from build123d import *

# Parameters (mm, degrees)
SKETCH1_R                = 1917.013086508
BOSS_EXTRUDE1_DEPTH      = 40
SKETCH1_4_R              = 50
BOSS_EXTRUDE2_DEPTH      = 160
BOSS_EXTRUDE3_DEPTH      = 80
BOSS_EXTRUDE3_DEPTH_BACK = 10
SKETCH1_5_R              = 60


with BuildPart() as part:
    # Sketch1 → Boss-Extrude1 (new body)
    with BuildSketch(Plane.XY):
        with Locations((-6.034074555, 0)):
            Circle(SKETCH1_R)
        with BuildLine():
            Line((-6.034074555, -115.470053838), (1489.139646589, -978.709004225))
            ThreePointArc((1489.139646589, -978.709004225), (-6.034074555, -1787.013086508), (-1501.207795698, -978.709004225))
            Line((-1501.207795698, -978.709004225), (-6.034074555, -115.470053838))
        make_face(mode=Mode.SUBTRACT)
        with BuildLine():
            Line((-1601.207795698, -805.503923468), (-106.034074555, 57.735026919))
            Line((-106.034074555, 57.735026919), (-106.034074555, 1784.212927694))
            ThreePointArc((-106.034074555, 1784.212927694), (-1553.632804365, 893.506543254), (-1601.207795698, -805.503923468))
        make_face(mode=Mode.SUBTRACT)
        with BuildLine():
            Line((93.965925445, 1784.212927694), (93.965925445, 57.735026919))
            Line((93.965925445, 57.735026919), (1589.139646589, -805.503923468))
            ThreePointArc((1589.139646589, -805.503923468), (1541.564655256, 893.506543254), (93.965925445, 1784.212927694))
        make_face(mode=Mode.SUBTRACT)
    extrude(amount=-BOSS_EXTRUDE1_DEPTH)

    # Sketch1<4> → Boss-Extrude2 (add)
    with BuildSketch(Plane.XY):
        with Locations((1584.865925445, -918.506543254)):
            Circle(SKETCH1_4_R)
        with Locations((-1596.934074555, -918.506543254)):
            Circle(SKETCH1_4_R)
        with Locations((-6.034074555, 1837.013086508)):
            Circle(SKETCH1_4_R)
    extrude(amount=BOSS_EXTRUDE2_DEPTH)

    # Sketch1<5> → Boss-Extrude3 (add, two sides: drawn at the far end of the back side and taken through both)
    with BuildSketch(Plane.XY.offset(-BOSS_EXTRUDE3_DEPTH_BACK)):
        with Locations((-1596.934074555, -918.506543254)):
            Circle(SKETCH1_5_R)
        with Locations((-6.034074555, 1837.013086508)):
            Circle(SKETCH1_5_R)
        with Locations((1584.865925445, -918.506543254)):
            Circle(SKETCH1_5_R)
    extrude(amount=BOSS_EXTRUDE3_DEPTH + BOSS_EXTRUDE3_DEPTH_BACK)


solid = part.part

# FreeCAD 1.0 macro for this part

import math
import FreeCAD as App
import Part
import Sketcher
from FreeCAD import Vector
Q = App.Units.Quantity

doc = App.newDocument("Part")
body = doc.addObject("PartDesign::Body", "Body")

sketch1 = body.newObject("Sketcher::SketchObject", "Sketch")
sketch1.AttachmentSupport = (doc.getObject("XY_Plane"), [""])
sketch1.MapMode = "FlatFace"
sketch1.addGeometry([
    Part.Circle(Vector(-6.034075, 0, 0), Vector(0, 0, 1), 1917.013087),
    Part.LineSegment(Vector(-1501.207796, -978.709004, 0), Vector(-6.034075, -115.470054, 0)),
    Part.LineSegment(Vector(-6.034075, -115.470054, 0), Vector(1489.139647, -978.709004, 0)),
    Part.ArcOfCircle(Part.Circle(Vector(-6.034075, 0, 0), Vector(0, 0, 1), 1787.013087), math.radians(-146.792093), math.radians(-33.207907)),
    Part.LineSegment(Vector(-106.034075, 57.735027, 0), Vector(-1601.207796, -805.503923, 0)),
    Part.ArcOfCircle(Part.Circle(Vector(-6.034075, 0, 0), Vector(0, 0, 1), 1787.013087), math.radians(93.207907), math.radians(206.792093)),
    Part.LineSegment(Vector(-106.034075, 1784.212928, 0), Vector(-106.034075, 57.735027, 0)),
    Part.LineSegment(Vector(93.965925, 57.735027, 0), Vector(93.965925, 1784.212928, 0)),
    Part.ArcOfCircle(Part.Circle(Vector(-6.034075, 0, 0), Vector(0, 0, 1), 1787.013087), math.radians(-26.792093), math.radians(86.792093)),
    Part.LineSegment(Vector(1589.139647, -805.503923, 0), Vector(93.965925, 57.735027, 0)),
], False)
sketch1.addConstraint([
    Sketcher.Constraint("Coincident", 1, 2, 2, 1),
    Sketcher.Constraint("Coincident", 2, 2, 3, 2),
    Sketcher.Constraint("Coincident", 3, 1, 1, 1),
    Sketcher.Constraint("Coincident", 4, 2, 5, 2),
    Sketcher.Constraint("Coincident", 5, 1, 6, 1),
    Sketcher.Constraint("Coincident", 6, 2, 4, 1),
    Sketcher.Constraint("Coincident", 7, 2, 8, 2),
    Sketcher.Constraint("Coincident", 8, 1, 9, 1),
    Sketcher.Constraint("Coincident", 9, 2, 7, 1),
    Sketcher.Constraint("Vertical", 6),
    Sketcher.Constraint("Vertical", 7),
    Sketcher.Constraint("Coincident", 3, 3, 0, 3),
    Sketcher.Constraint("Coincident", 5, 3, 0, 3),
    Sketcher.Constraint("Coincident", 8, 3, 0, 3),
    Sketcher.Constraint("Equal", 3, 5),
    Sketcher.Constraint("Equal", 5, 8),
    Sketcher.Constraint("PointOnObject", 0, 3, -1),
    Sketcher.Constraint("Parallel", 1, 4),
    Sketcher.Constraint("Parallel", 2, 9),
    Sketcher.Constraint("Horizontal", 6, 2, 9, 2),
    Sketcher.Constraint("Vertical", 8, 3, 1, 2),
    Sketcher.Constraint("Equal", 6, 7),
    Sketcher.Constraint("Equal", 1, 2),
    Sketcher.Constraint("Equal", 2, 4),
    Sketcher.Constraint("Angle", 1, Q("30 deg")),
    Sketcher.Constraint("DistanceX", 6, 2, 0, 3, Q("100 mm")),
    Sketcher.Constraint("Diameter", 0, Q("3834.026173 mm")),
    Sketcher.Constraint("DistanceY", 6, 2, 6, 1, Q("1726.477901 mm")),
    Sketcher.Constraint("Radius", 3, Q("1787.013087 mm")),
    Sketcher.Constraint("DistanceX", 0, 3, -1, 1, Q("6.034075 mm")),
])
pad1 = body.newObject("PartDesign::Pad", "Pad")
pad1.Profile = sketch1
pad1.Length = 40
pad1.Reversed = True

sketch2 = body.newObject("Sketcher::SketchObject", "Sketch001")
sketch2.AttachmentSupport = (doc.getObject("XY_Plane"), [""])
sketch2.MapMode = "FlatFace"
sketch2.addGeometry([
    Part.Circle(Vector(1584.865925, -918.506543, 0), Vector(0, 0, 1), 50),
    Part.Circle(Vector(-1596.934075, -918.506543, 0), Vector(0, 0, 1), 50),
    Part.Circle(Vector(-6.034075, 1837.013087, 0), Vector(0, 0, 1), 50),
], False)
sketch2.addConstraint([
    Sketcher.Constraint("Equal", 0, 1),
    Sketcher.Constraint("Equal", 1, 2),
    Sketcher.Constraint("Horizontal", 0, 3, 1, 3),
    Sketcher.Constraint("Diameter", 0, Q("100 mm")),
    Sketcher.Constraint("DistanceX", 1, 3, 0, 3, Q("3181.8 mm")),
    Sketcher.Constraint("DistanceX", 2, 3, 0, 3, Q("1590.9 mm")),
    Sketcher.Constraint("DistanceY", 0, 3, 2, 3, Q("2755.51963 mm")),
    Sketcher.Constraint("DistanceX", -1, 1, 0, 3, Q("1584.865925 mm")),
    Sketcher.Constraint("DistanceY", 0, 3, -1, 1, Q("918.506543 mm")),
])
pad2 = body.newObject("PartDesign::Pad", "Pad001")
pad2.Profile = sketch2
pad2.Length = 160

sketch3 = body.newObject("Sketcher::SketchObject", "Sketch002")
sketch3.AttachmentSupport = (doc.getObject("XY_Plane"), [""])
sketch3.MapMode = "FlatFace"
sketch3.addGeometry([
    Part.Circle(Vector(-1596.934075, -918.506543, 0), Vector(0, 0, 1), 60),
    Part.Circle(Vector(-6.034075, 1837.013087, 0), Vector(0, 0, 1), 60),
    Part.Circle(Vector(1584.865925, -918.506543, 0), Vector(0, 0, 1), 60),
], False)
sketch3.addConstraint([
    Sketcher.Constraint("Equal", 0, 1),
    Sketcher.Constraint("Equal", 1, 2),
    Sketcher.Constraint("Horizontal", 0, 3, 2, 3),
    Sketcher.Constraint("Diameter", 0, Q("120 mm")),
    Sketcher.Constraint("DistanceX", 0, 3, 1, 3, Q("1590.9 mm")),
    Sketcher.Constraint("DistanceX", 0, 3, 2, 3, Q("3181.8 mm")),
    Sketcher.Constraint("DistanceY", 0, 3, 1, 3, Q("2755.51963 mm")),
    Sketcher.Constraint("DistanceX", 0, 3, -1, 1, Q("1596.934075 mm")),
    Sketcher.Constraint("DistanceY", 0, 3, -1, 1, Q("918.506543 mm")),
])
pad3 = body.newObject("PartDesign::Pad", "Pad002")
pad3.Profile = sketch3
pad3.Type = "TwoLengths"
pad3.Length = 80
pad3.Length2 = 10

doc.recompute()
